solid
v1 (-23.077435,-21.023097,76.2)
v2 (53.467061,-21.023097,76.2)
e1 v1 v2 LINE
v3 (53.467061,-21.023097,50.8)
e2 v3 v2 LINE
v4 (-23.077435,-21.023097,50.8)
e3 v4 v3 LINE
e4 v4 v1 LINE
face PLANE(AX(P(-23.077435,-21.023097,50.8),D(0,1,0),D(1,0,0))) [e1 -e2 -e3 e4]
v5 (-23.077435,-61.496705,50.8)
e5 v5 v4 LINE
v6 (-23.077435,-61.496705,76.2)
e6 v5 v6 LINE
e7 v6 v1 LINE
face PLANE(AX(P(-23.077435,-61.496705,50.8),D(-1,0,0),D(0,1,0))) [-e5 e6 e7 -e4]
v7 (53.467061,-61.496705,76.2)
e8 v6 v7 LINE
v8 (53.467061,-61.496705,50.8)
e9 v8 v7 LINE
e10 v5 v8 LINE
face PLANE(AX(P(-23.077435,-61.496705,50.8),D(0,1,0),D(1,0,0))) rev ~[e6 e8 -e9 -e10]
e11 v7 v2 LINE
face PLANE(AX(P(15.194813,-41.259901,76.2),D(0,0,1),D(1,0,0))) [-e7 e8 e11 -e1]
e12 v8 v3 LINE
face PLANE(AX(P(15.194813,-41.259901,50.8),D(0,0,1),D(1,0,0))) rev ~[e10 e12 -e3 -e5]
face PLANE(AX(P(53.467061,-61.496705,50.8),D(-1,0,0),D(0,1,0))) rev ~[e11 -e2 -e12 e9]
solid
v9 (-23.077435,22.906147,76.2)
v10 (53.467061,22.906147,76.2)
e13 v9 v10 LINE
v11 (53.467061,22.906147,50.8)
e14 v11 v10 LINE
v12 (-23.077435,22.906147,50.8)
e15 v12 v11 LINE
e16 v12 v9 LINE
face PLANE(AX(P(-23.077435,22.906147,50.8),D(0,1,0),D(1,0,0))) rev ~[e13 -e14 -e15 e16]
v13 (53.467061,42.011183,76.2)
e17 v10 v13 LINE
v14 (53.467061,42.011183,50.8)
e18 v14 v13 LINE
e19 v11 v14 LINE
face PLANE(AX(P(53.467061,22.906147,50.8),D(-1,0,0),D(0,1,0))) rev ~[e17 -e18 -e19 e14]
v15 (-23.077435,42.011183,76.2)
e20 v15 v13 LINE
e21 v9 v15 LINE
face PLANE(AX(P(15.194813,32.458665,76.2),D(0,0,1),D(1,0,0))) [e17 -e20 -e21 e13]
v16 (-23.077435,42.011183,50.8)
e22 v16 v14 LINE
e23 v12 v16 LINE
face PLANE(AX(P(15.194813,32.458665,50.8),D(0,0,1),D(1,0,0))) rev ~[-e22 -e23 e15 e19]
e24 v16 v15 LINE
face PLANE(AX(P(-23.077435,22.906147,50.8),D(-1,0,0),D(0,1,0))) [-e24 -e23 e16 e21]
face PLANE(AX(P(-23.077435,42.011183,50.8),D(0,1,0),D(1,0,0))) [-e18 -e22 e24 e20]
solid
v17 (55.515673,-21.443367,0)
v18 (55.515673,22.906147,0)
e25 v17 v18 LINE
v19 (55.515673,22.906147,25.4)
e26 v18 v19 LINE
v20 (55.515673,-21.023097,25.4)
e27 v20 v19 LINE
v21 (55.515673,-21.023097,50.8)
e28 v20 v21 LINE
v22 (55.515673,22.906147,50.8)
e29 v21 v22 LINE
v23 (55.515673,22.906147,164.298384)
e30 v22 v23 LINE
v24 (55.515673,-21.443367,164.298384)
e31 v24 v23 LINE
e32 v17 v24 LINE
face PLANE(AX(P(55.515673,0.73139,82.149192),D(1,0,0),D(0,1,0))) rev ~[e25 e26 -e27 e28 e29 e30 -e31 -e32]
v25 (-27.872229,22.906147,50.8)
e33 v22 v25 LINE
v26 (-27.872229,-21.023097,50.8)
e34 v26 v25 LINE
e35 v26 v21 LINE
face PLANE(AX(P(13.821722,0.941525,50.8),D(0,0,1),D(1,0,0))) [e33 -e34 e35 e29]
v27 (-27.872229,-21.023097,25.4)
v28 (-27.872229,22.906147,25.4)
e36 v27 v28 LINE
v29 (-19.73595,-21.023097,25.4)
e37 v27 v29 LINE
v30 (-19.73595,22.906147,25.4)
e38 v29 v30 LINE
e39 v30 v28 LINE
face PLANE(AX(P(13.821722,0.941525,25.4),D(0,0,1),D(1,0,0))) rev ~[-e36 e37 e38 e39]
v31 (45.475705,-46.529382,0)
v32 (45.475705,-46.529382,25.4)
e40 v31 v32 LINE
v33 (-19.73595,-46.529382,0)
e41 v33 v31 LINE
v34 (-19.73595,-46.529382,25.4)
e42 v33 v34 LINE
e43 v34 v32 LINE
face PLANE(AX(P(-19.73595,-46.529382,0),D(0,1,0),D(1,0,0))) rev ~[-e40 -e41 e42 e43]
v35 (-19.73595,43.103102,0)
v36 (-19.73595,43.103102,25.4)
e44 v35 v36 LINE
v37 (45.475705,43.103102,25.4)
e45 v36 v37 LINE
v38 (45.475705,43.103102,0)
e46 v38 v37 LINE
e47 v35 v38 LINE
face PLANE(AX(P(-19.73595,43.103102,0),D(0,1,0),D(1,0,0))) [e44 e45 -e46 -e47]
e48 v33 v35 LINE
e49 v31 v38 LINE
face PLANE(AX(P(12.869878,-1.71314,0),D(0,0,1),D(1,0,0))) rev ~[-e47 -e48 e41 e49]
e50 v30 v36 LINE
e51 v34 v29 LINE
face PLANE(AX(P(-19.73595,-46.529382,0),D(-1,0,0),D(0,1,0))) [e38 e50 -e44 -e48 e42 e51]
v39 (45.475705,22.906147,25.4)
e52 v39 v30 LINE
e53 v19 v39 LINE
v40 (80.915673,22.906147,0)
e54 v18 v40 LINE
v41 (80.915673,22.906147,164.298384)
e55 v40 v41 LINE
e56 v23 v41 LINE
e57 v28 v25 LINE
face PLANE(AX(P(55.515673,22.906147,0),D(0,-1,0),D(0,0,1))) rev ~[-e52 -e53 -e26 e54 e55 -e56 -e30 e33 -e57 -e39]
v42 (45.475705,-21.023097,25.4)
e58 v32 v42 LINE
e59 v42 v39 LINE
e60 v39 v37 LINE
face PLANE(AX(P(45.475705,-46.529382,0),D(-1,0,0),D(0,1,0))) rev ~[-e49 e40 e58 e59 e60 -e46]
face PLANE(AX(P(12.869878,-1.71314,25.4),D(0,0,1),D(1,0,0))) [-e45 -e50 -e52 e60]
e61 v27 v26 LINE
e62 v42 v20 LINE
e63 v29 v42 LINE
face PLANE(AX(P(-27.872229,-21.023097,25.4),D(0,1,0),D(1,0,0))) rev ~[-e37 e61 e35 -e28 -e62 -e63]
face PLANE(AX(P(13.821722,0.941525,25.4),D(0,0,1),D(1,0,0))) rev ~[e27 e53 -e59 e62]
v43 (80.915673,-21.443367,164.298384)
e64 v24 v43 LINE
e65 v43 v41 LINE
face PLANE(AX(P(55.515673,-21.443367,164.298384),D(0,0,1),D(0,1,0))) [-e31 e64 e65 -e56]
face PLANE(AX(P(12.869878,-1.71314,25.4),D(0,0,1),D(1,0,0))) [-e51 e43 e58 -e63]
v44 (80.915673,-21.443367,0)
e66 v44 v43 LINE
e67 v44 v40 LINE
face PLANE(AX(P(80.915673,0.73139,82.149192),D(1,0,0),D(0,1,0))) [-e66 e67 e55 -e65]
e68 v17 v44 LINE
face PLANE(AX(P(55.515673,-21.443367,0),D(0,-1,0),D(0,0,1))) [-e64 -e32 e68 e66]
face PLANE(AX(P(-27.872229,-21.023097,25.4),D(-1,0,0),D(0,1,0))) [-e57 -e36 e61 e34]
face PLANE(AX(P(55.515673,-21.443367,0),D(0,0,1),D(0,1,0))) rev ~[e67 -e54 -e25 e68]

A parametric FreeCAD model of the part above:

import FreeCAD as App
import Part
import Sketcher
from FreeCAD import Vector
Q = App.Units.Quantity

doc = App.newDocument("Part")
body = doc.addObject("PartDesign::Body", "Body")

# Sketch on XY plane
sketch1 = body.newObject("Sketcher::SketchObject", "Sketch")
sketch1.AttachmentSupport = (doc.getObject("XY_Plane"), [""])
sketch1.MapMode = "FlatFace"
sketch1.addGeometry(Part.LineSegment(Vector(-20, 43, 0), Vector(-20, -47, 0)), False)
sketch1.addGeometry(Part.LineSegment(Vector(-20, -47, 0), Vector(45, -47, 0)), False)
sketch1.addGeometry(Part.LineSegment(Vector(45, -47, 0), Vector(45, 43, 0)), False)
sketch1.addGeometry(Part.LineSegment(Vector(45, 43, 0), Vector(-20, 43, 0)), False)
sketch1.addConstraint(Sketcher.Constraint("Coincident", 0, 2, 1, 1))
sketch1.addConstraint(Sketcher.Constraint("Coincident", 1, 2, 2, 1))
sketch1.addConstraint(Sketcher.Constraint("Coincident", 2, 2, 3, 1))
sketch1.addConstraint(Sketcher.Constraint("Coincident", 3, 2, 0, 1))
sketch1.addConstraint(Sketcher.Constraint("Vertical", 0))
sketch1.addConstraint(Sketcher.Constraint("Horizontal", 1))
sketch1.addConstraint(Sketcher.Constraint("Vertical", 2))
sketch1.addConstraint(Sketcher.Constraint("Horizontal", 3))
sketch1.addConstraint(Sketcher.Constraint("DistanceX", 1, 1, 1, 2, Q("65.211655 mm")))
sketch1.addConstraint(Sketcher.Constraint("DistanceY", 0, 2, 0, 1, Q("89.632485 mm")))
sketch1.addConstraint(Sketcher.Constraint("DistanceX", 0, 2, -1, 1, Q("19.73595 mm")))
sketch1.addConstraint(Sketcher.Constraint("DistanceY", 0, 2, -1, 1, Q("46.529382 mm")))
pad1 = body.newObject("PartDesign::Pad", "Pad")
pad1.Profile = sketch1
pad1.Length = Q("1 in")

# Sketch on XY plane
sketch2 = body.newObject("Sketcher::SketchObject", "Sketch001")
sketch2.AttachmentSupport = (doc.getObject("XY_Plane"), [""])
sketch2.MapMode = "FlatFace"
sketch2.AttachmentOffset = App.Placement(Vector(0, 0, 1 * 25.4), App.Rotation())
sketch2.addGeometry(Part.LineSegment(Vector(-28, 23, 0), Vector(-28, -21, 0)), False)
sketch2.addGeometry(Part.LineSegment(Vector(-28, -21, 0), Vector(56, -21, 0)), False)
sketch2.addGeometry(Part.LineSegment(Vector(56, -21, 0), Vector(56, 23, 0)), False)
sketch2.addGeometry(Part.LineSegment(Vector(56, 23, 0), Vector(-28, 23, 0)), False)
sketch2.addConstraint(Sketcher.Constraint("Coincident", 0, 2, 1, 1))
sketch2.addConstraint(Sketcher.Constraint("Coincident", 1, 2, 2, 1))
sketch2.addConstraint(Sketcher.Constraint("Coincident", 2, 2, 3, 1))
sketch2.addConstraint(Sketcher.Constraint("Coincident", 3, 2, 0, 1))
sketch2.addConstraint(Sketcher.Constraint("Vertical", 0))
sketch2.addConstraint(Sketcher.Constraint("Horizontal", 1))
sketch2.addConstraint(Sketcher.Constraint("Vertical", 2))
sketch2.addConstraint(Sketcher.Constraint("Horizontal", 3))
sketch2.addConstraint(Sketcher.Constraint("DistanceX", 1, 1, 1, 2, Q("83.387902 mm")))
sketch2.addConstraint(Sketcher.Constraint("DistanceY", 0, 2, 0, 1, Q("43.929244 mm")))
sketch2.addConstraint(Sketcher.Constraint("DistanceX", 0, 2, -1, 1, Q("27.872229 mm")))
sketch2.addConstraint(Sketcher.Constraint("DistanceY", 0, 2, -1, 1, Q("21.023097 mm")))
pad2 = body.newObject("PartDesign::Pad", "Pad001")
pad2.Profile = sketch2
pad2.Length = Q("1 in")

# Sketch on YZ plane
sketch3 = body.newObject("Sketcher::SketchObject", "Sketch002")
sketch3.AttachmentSupport = (doc.getObject("YZ_Plane"), [""])
sketch3.MapMode = "FlatFace"
sketch3.AttachmentOffset = App.Placement(Vector(0, 0, 55.515673), App.Rotation())
sketch3.addGeometry(Part.LineSegment(Vector(-21, 164, 0), Vector(-21, 0, 0)), False)
sketch3.addGeometry(Part.LineSegment(Vector(-21, 0, 0), Vector(23, 0, 0)), False)
sketch3.addGeometry(Part.LineSegment(Vector(23, 0, 0), Vector(23, 164, 0)), False)
sketch3.addGeometry(Part.LineSegment(Vector(23, 164, 0), Vector(-21, 164, 0)), False)
sketch3.addConstraint(Sketcher.Constraint("Coincident", 0, 2, 1, 1))
sketch3.addConstraint(Sketcher.Constraint("Coincident", 1, 2, 2, 1))
sketch3.addConstraint(Sketcher.Constraint("Coincident", 2, 2, 3, 1))
sketch3.addConstraint(Sketcher.Constraint("Coincident", 3, 2, 0, 1))
sketch3.addConstraint(Sketcher.Constraint("Vertical", 0))
sketch3.addConstraint(Sketcher.Constraint("Horizontal", 1))
sketch3.addConstraint(Sketcher.Constraint("Vertical", 2))
sketch3.addConstraint(Sketcher.Constraint("Horizontal", 3))
sketch3.addConstraint(Sketcher.Constraint("PointOnObject", 0, 2, -1))
sketch3.addConstraint(Sketcher.Constraint("DistanceX", 1, 1, 1, 2, Q("44.349514 mm")))
sketch3.addConstraint(Sketcher.Constraint("DistanceY", 0, 2, 0, 1, Q("164.298385 mm")))
sketch3.addConstraint(Sketcher.Constraint("DistanceX", 0, 2, -1, 1, Q("21.443367 mm")))
pad3 = body.newObject("PartDesign::Pad", "Pad002")
pad3.Profile = sketch3
pad3.Length = Q("1 in")
body2 = doc.addObject("PartDesign::Body", "Body001")
body2.AllowCompound = True

# Sketch on XY plane
sketch4 = body2.newObject("Sketcher::SketchObject", "Sketch003")
sketch4.AttachmentSupport = (doc.getObject("XY_Plane001"), [""])
sketch4.MapMode = "FlatFace"
sketch4.AttachmentOffset = App.Placement(Vector(0, 0, 2 * 25.4), App.Rotation())
sketch4.addGeometry(Part.LineSegment(Vector(-23, 42, 0), Vector(-23, 23, 0)), False)
sketch4.addGeometry(Part.LineSegment(Vector(-23, 23, 0), Vector(53, 23, 0)), False)
sketch4.addGeometry(Part.LineSegment(Vector(53, 23, 0), Vector(53, 42, 0)), False)
sketch4.addGeometry(Part.LineSegment(Vector(53, 42, 0), Vector(-23, 42, 0)), False)
sketch4.addGeometry(Part.LineSegment(Vector(-23, -21, 0), Vector(-23, -61, 0)), False)
sketch4.addGeometry(Part.LineSegment(Vector(-23, -61, 0), Vector(53, -61, 0)), False)
sketch4.addGeometry(Part.LineSegment(Vector(53, -61, 0), Vector(53, -21, 0)), False)
sketch4.addGeometry(Part.LineSegment(Vector(53, -21, 0), Vector(-23, -21, 0)), False)
sketch4.addConstraint(Sketcher.Constraint("Coincident", 0, 2, 1, 1))
sketch4.addConstraint(Sketcher.Constraint("Coincident", 1, 2, 2, 1))
sketch4.addConstraint(Sketcher.Constraint("Coincident", 2, 2, 3, 1))
sketch4.addConstraint(Sketcher.Constraint("Coincident", 3, 2, 0, 1))
sketch4.addConstraint(Sketcher.Constraint("Coincident", 4, 2, 5, 1))
sketch4.addConstraint(Sketcher.Constraint("Coincident", 5, 2, 6, 1))
sketch4.addConstraint(Sketcher.Constraint("Coincident", 6, 2, 7, 1))
sketch4.addConstraint(Sketcher.Constraint("Coincident", 7, 2, 4, 1))
sketch4.addConstraint(Sketcher.Constraint("Vertical", 0))
sketch4.addConstraint(Sketcher.Constraint("Horizontal", 1))
sketch4.addConstraint(Sketcher.Constraint("Vertical", 2))
sketch4.addConstraint(Sketcher.Constraint("Horizontal", 3))
sketch4.addConstraint(Sketcher.Constraint("Vertical", 4))
sketch4.addConstraint(Sketcher.Constraint("Horizontal", 5))
sketch4.addConstraint(Sketcher.Constraint("Vertical", 6))
sketch4.addConstraint(Sketcher.Constraint("Horizontal", 7))
sketch4.addConstraint(Sketcher.Constraint("Vertical", 3, 2, 4, 2))
sketch4.addConstraint(Sketcher.Constraint("Vertical", 2, 2, 5, 2))
sketch4.addConstraint(Sketcher.Constraint("DistanceX", 1, 1, 1, 2, Q("76.544497 mm")))
sketch4.addConstraint(Sketcher.Constraint("DistanceY", 0, 2, 0, 1, Q("19.105036 mm")))
sketch4.addConstraint(Sketcher.Constraint("DistanceY", 4, 2, 4, 1, Q("40.473608 mm")))
sketch4.addConstraint(Sketcher.Constraint("DistanceX", -1, 1, 1, 2, Q("53.467061 mm")))
sketch4.addConstraint(Sketcher.Constraint("DistanceY", 4, 2, 0, 2, Q("84.402852 mm")))
sketch4.addConstraint(Sketcher.Constraint("DistanceY", -1, 1, 0, 2, Q("22.906147 mm")))
pad4 = body2.newObject("PartDesign::Pad", "Pad003")
pad4.Profile = sketch4
pad4.Length = Q("1 in")

doc.recompute()
